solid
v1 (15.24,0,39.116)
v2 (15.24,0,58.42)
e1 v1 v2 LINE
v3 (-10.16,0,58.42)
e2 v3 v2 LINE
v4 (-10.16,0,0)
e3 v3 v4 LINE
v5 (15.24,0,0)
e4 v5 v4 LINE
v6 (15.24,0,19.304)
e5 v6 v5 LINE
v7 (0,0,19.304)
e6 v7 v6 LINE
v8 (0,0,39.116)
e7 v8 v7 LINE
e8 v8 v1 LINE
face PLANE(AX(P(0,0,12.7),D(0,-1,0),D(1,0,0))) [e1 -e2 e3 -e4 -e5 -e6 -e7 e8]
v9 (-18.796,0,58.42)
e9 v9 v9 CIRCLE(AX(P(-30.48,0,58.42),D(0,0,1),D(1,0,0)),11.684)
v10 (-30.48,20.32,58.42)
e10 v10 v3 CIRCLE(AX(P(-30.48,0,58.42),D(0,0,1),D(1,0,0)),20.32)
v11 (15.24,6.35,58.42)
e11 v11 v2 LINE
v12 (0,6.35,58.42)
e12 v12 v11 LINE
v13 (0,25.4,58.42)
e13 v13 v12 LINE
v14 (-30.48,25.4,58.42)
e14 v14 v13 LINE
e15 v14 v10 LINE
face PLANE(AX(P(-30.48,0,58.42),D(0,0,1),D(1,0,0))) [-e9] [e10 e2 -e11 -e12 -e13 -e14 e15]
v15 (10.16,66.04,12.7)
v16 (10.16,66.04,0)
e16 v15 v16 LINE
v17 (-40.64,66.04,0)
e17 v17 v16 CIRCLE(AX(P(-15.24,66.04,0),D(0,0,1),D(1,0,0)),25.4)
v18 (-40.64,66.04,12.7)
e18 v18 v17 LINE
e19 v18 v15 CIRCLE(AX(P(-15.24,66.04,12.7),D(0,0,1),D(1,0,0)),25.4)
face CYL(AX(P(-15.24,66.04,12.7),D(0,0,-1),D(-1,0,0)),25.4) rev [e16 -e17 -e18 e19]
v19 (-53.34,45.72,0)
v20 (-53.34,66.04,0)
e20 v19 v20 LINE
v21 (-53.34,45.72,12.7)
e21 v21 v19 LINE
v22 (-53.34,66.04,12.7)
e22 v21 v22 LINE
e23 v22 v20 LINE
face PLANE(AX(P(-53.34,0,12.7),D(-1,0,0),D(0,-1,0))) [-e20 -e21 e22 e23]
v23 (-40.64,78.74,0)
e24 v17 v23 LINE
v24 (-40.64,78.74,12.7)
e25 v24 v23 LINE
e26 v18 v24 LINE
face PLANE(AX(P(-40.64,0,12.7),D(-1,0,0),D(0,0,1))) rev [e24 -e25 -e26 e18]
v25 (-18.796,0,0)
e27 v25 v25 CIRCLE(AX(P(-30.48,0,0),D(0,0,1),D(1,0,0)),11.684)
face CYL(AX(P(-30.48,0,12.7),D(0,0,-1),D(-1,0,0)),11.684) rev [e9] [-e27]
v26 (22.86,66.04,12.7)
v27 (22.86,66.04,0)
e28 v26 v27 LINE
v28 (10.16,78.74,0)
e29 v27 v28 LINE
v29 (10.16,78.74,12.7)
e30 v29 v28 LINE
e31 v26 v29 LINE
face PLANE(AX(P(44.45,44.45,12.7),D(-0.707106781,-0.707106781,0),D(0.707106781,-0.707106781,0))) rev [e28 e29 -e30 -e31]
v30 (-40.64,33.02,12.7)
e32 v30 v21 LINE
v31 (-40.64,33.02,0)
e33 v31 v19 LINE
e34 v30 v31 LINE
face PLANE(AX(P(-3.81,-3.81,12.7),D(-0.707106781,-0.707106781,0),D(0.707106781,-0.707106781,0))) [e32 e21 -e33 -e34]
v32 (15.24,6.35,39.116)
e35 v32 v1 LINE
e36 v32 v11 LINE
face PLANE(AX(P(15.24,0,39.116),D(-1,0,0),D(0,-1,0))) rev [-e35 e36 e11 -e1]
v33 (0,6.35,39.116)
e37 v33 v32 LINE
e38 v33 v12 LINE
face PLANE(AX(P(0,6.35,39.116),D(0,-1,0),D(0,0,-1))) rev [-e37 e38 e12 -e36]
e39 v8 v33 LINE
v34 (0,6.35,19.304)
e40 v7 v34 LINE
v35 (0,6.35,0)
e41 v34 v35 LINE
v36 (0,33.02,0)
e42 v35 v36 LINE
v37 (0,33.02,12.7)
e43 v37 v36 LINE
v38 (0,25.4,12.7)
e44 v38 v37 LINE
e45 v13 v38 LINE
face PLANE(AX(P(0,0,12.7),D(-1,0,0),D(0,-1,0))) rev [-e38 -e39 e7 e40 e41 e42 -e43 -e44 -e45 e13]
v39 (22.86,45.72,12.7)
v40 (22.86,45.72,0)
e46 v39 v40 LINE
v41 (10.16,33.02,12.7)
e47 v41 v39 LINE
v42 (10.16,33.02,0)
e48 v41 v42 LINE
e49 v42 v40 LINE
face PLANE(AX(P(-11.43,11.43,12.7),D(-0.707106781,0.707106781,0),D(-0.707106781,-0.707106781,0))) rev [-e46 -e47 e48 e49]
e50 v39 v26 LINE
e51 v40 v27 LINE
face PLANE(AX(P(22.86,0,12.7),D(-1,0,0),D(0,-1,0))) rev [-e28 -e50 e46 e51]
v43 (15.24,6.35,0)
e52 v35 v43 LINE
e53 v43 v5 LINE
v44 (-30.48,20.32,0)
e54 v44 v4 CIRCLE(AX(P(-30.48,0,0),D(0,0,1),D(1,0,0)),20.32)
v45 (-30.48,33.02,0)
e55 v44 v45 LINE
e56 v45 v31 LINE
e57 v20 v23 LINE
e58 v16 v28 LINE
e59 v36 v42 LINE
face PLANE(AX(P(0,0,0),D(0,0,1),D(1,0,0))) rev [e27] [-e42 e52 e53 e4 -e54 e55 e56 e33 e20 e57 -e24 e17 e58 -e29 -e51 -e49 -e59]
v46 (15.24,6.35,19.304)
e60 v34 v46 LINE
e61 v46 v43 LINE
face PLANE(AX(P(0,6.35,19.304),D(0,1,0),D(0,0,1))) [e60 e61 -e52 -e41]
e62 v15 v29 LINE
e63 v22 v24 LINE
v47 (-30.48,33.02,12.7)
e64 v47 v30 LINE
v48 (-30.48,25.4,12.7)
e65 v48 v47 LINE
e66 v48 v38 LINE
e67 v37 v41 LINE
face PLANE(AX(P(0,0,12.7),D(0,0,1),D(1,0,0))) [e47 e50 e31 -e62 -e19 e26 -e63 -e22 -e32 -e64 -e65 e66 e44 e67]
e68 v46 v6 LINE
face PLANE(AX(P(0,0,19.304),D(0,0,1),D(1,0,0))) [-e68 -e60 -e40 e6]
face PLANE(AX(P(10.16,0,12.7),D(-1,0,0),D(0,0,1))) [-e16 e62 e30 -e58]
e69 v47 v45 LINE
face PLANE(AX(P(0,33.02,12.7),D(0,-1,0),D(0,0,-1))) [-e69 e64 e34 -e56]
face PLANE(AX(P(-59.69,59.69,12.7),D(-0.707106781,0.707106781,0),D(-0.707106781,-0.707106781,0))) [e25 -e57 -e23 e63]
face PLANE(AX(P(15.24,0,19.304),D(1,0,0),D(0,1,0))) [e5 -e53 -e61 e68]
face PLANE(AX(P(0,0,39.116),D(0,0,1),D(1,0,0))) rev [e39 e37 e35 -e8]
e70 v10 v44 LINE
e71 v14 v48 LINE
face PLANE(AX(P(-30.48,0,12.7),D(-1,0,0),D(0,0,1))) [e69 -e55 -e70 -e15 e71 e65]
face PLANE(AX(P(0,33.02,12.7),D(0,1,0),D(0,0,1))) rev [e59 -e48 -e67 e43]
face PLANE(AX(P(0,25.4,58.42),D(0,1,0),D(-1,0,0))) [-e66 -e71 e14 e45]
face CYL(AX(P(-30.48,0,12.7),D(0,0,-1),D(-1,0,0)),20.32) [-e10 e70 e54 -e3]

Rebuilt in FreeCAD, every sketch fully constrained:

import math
import FreeCAD as App
import Part
import Sketcher
Q = App.Units.Quantity

doc = App.newDocument("Part")
params = doc.addObject("Spreadsheet::Sheet", "Params")
for row, (alias, value) in enumerate([
    ("sketch1_radius", "1 in"),
    ("sketch1_radius2", "0.8 in"),
    ("sketch1_diameter", "0.92 in"),
    ("sketch1_height", "1.3 in"),
    ("sketch1_height2", "0.8 in"),
    ("pad1_length", "0.5 in"),
    ("sketch2_radius", "0.8 in"),
    ("sketch2_diameter", "0.92 in"),
    ("sketch2_height", "1 in"),
    ("sketch2_width", "0.4 in"),
    ("pad2_length", "1.8 in"),
    ("sketch3_width", "0.6 in"),
    ("sketch3_height", "0.25 in"),
    ("pad3_length", "0.76 in"),
    ("sketch4_width", "0.6 in"),
    ("sketch4_height", "0.25 in"),
    ("pad4_length", "0.76 in"),
], start=1):
    params.set(f"A{row}", alias)
    params.set(f"B{row}", "=" + value)
    params.setAlias(f"B{row}", alias)

body = doc.addObject("PartDesign::Body", "Body")

sketch1 = body.newObject("Sketcher::SketchObject", "Sketch")
sketch1.AttachmentSupport = (doc.getObject("XY_Plane"), [""])
sketch1.MapMode = "FlatFace"
sketch1.addGeometry(Part.LineSegment(App.Vector(-10.16, 0, 0), App.Vector(0, 0, 0)), False)
sketch1.addGeometry(Part.LineSegment(App.Vector(0, 0, 0), App.Vector(0, 33.02, 0)), False)
sketch1.addGeometry(Part.LineSegment(App.Vector(0, 33.02, 0), App.Vector(10.16, 33.02, 0)), False)
sketch1.addGeometry(Part.LineSegment(App.Vector(10.16, 33.02, 0), App.Vector(22.86, 45.72, 0)), False)
sketch1.addGeometry(Part.LineSegment(App.Vector(22.86, 45.72, 0), App.Vector(22.86, 66.04, 0)), False)
sketch1.addGeometry(Part.LineSegment(App.Vector(22.86, 66.04, 0), App.Vector(10.16, 78.74, 0)), False)
sketch1.addGeometry(Part.LineSegment(App.Vector(10.16, 78.74, 0), App.Vector(10.16, 66.04, 0)), False)
sketch1.addGeometry(Part.ArcOfCircle(Part.Circle(App.Vector(-15.24, 66.04, 0), App.Vector(0, 0, 1), 25.4), math.radians(180), math.radians(360)), False)
sketch1.addGeometry(Part.LineSegment(App.Vector(-40.64, 66.04, 0), App.Vector(-40.64, 78.74, 0)), False)
sketch1.addGeometry(Part.LineSegment(App.Vector(-40.64, 78.74, 0), App.Vector(-53.34, 66.04, 0)), False)
sketch1.addGeometry(Part.LineSegment(App.Vector(-53.34, 66.04, 0), App.Vector(-53.34, 45.72, 0)), False)
sketch1.addGeometry(Part.LineSegment(App.Vector(-53.34, 45.72, 0), App.Vector(-40.64, 33.02, 0)), False)
sketch1.addGeometry(Part.LineSegment(App.Vector(-40.64, 33.02, 0), App.Vector(-30.48, 33.02, 0)), False)
sketch1.addGeometry(Part.LineSegment(App.Vector(-30.48, 33.02, 0), App.Vector(-30.48, 20.32, 0)), False)
sketch1.addGeometry(Part.ArcOfCircle(Part.Circle(App.Vector(-30.48, 0, 0), App.Vector(0, 0, 1), 20.32), math.radians(90), math.radians(360)), False)
sketch1.addGeometry(Part.Circle(App.Vector(-30.48, 0, 0), App.Vector(0, 0, 1), 11.684), False)
sketch1.addConstraint(Sketcher.Constraint("Coincident", 0, 2, 1, 1))
sketch1.addConstraint(Sketcher.Constraint("Coincident", 1, 2, 2, 1))
sketch1.addConstraint(Sketcher.Constraint("Coincident", 2, 2, 3, 1))
sketch1.addConstraint(Sketcher.Constraint("Coincident", 3, 2, 4, 1))
sketch1.addConstraint(Sketcher.Constraint("Coincident", 4, 2, 5, 1))
sketch1.addConstraint(Sketcher.Constraint("Coincident", 5, 2, 6, 1))
sketch1.addConstraint(Sketcher.Constraint("Tangent", 6, 2, 7, 2))
sketch1.addConstraint(Sketcher.Constraint("Tangent", 7, 1, 8, 1))
sketch1.addConstraint(Sketcher.Constraint("Coincident", 8, 2, 9, 1))
sketch1.addConstraint(Sketcher.Constraint("Coincident", 9, 2, 10, 1))
sketch1.addConstraint(Sketcher.Constraint("Coincident", 10, 2, 11, 1))
sketch1.addConstraint(Sketcher.Constraint("Coincident", 11, 2, 12, 1))
sketch1.addConstraint(Sketcher.Constraint("Coincident", 12, 2, 13, 1))
sketch1.addConstraint(Sketcher.Constraint("Coincident", 13, 2, 14, 1))
sketch1.addConstraint(Sketcher.Constraint("Coincident", 14, 2, 0, 1))
sketch1.addConstraint(Sketcher.Constraint("Horizontal", 0))
sketch1.addConstraint(Sketcher.Constraint("Vertical", 1))
sketch1.addConstraint(Sketcher.Constraint("Horizontal", 2))
sketch1.addConstraint(Sketcher.Constraint("Vertical", 4))
sketch1.addConstraint(Sketcher.Constraint("Vertical", 6))
sketch1.addConstraint(Sketcher.Constraint("Vertical", 8))
sketch1.addConstraint(Sketcher.Constraint("Vertical", 10))
sketch1.addConstraint(Sketcher.Constraint("Horizontal", 12))
sketch1.addConstraint(Sketcher.Constraint("Vertical", 13))
sketch1.addConstraint(Sketcher.Constraint("Coincident", 0, 2, -1, 1))
sketch1.addConstraint(Sketcher.Constraint("Coincident", 15, 3, 14, 3))
sketch1.addConstraint(Sketcher.Constraint("PointOnObject", 14, 3, -1))
sketch1.addConstraint(Sketcher.Constraint("Perpendicular", 3, 5))
sketch1.addConstraint(Sketcher.Constraint("Perpendicular", 5, 9))
sketch1.addConstraint(Sketcher.Constraint("Perpendicular", 9, 11))
sketch1.addConstraint(Sketcher.Constraint("Horizontal", 7, 3, 4, 2))
sketch1.addConstraint(Sketcher.Constraint("Horizontal", 5, 2, 8, 2))
sketch1.addConstraint(Sketcher.Constraint("Horizontal", 7, 1, 9, 2))
sketch1.addConstraint(Sketcher.Constraint("Horizontal", 3, 2, 10, 2))
sketch1.addConstraint(Sketcher.Constraint("Horizontal", 2, 2, 11, 2))
sketch1.addConstraint(Sketcher.Constraint("Vertical", 2, 2, 5, 2))
sketch1.addConstraint(Sketcher.Constraint("Vertical", 8, 2, 11, 2))
sketch1.addConstraint(Sketcher.Constraint("Vertical", 15, 3, 12, 2))
sketch1.addConstraint(Sketcher.Constraint("Equal", 0, 2))
sketch1.addConstraint(Sketcher.Constraint("Equal", 2, 12))
sketch1.addConstraint(Sketcher.Constraint("Equal", 8, 13))
sketch1.addConstraint(Sketcher.Constraint("Radius", 7, Q("1 in")))
sketch1.addConstraint(Sketcher.Constraint("Radius", 14, Q("0.8 in")))
sketch1.addConstraint(Sketcher.Constraint("Diameter", 15, Q("0.92 in")))
sketch1.addConstraint(Sketcher.Constraint("DistanceY", 1, 1, 1, 2, Q("1.3 in")))
sketch1.addConstraint(Sketcher.Constraint("DistanceY", 4, 1, 4, 2, Q("0.8 in")))
sketch1.setExpression("Constraints[41]", "Params.sketch1_radius")
sketch1.setExpression("Constraints[42]", "Params.sketch1_radius2")
sketch1.setExpression("Constraints[43]", "Params.sketch1_diameter")
sketch1.setExpression("Constraints[44]", "Params.sketch1_height")
sketch1.setExpression("Constraints[45]", "Params.sketch1_height2")
pad1 = body.newObject("PartDesign::Pad", "Pad")
pad1.Profile = sketch1
pad1.setExpression("Length", "Params.pad1_length")

sketch2 = body.newObject("Sketcher::SketchObject", "Sketch001")
sketch2.AttachmentSupport = (doc.getObject("XY_Plane"), [""])
sketch2.MapMode = "FlatFace"
sketch2.AttachmentOffset = App.Placement(App.Vector(0, 0, 0.5 * 25.4), App.Rotation())
sketch2.addGeometry(Part.LineSegment(App.Vector(-30.48, 25.4, 0), App.Vector(-30.48, 20.32, 0)), False)
sketch2.addGeometry(Part.ArcOfCircle(Part.Circle(App.Vector(-30.48, 0, 0), App.Vector(0, 0, 1), 20.32), math.radians(90), math.radians(360)), False)
sketch2.addGeometry(Part.LineSegment(App.Vector(-10.16, 0, 0), App.Vector(0, 0, 0)), False)
sketch2.addGeometry(Part.LineSegment(App.Vector(0, 0, 0), App.Vector(0, 25.4, 0)), False)
sketch2.addGeometry(Part.LineSegment(App.Vector(0, 25.4, 0), App.Vector(-30.48, 25.4, 0)), False)
sketch2.addGeometry(Part.Circle(App.Vector(-30.48, 0, 0), App.Vector(0, 0, 1), 11.684), False)
sketch2.addConstraint(Sketcher.Constraint("Coincident", 0, 2, 1, 1))
sketch2.addConstraint(Sketcher.Constraint("Coincident", 1, 2, 2, 1))
sketch2.addConstraint(Sketcher.Constraint("Coincident", 2, 2, 3, 1))
sketch2.addConstraint(Sketcher.Constraint("Coincident", 3, 2, 4, 1))
sketch2.addConstraint(Sketcher.Constraint("Coincident", 4, 2, 0, 1))
sketch2.addConstraint(Sketcher.Constraint("Vertical", 0))
sketch2.addConstraint(Sketcher.Constraint("Horizontal", 2))
sketch2.addConstraint(Sketcher.Constraint("Vertical", 3))
sketch2.addConstraint(Sketcher.Constraint("Horizontal", 4))
sketch2.addConstraint(Sketcher.Constraint("Coincident", 2, 2, -1, 1))
sketch2.addConstraint(Sketcher.Constraint("Coincident", 5, 3, 1, 3))
sketch2.addConstraint(Sketcher.Constraint("PointOnObject", 1, 3, -1))
sketch2.addConstraint(Sketcher.Constraint("Vertical", 5, 3, 0, 2))
sketch2.addConstraint(Sketcher.Constraint("Radius", 1, Q("0.8 in")))
sketch2.addConstraint(Sketcher.Constraint("Diameter", 5, Q("0.92 in")))
sketch2.addConstraint(Sketcher.Constraint("DistanceY", 3, 1, 3, 2, Q("1 in")))
sketch2.addConstraint(Sketcher.Constraint("DistanceX", 2, 1, 2, 2, Q("0.4 in")))
sketch2.setExpression("Constraints[13]", "Params.sketch2_radius")
sketch2.setExpression("Constraints[14]", "Params.sketch2_diameter")
sketch2.setExpression("Constraints[15]", "Params.sketch2_height")
sketch2.setExpression("Constraints[16]", "Params.sketch2_width")
pad2 = body.newObject("PartDesign::Pad", "Pad001")
pad2.Profile = sketch2
pad2.setExpression("Length", "Params.pad2_length")

sketch3 = body.newObject("Sketcher::SketchObject", "Sketch002")
sketch3.AttachmentSupport = (doc.getObject("XY_Plane"), [""])
sketch3.MapMode = "FlatFace"
sketch3.addGeometry(Part.LineSegment(App.Vector(0, 6.35, 0), App.Vector(0, 0, 0)), False)
sketch3.addGeometry(Part.LineSegment(App.Vector(0, 0, 0), App.Vector(15.24, 0, 0)), False)
sketch3.addGeometry(Part.LineSegment(App.Vector(15.24, 0, 0), App.Vector(15.24, 6.35, 0)), False)
sketch3.addGeometry(Part.LineSegment(App.Vector(15.24, 6.35, 0), App.Vector(0, 6.35, 0)), False)
sketch3.addConstraint(Sketcher.Constraint("Coincident", 0, 2, 1, 1))
sketch3.addConstraint(Sketcher.Constraint("Coincident", 1, 2, 2, 1))
sketch3.addConstraint(Sketcher.Constraint("Coincident", 2, 2, 3, 1))
sketch3.addConstraint(Sketcher.Constraint("Coincident", 3, 2, 0, 1))
sketch3.addConstraint(Sketcher.Constraint("Vertical", 0))
sketch3.addConstraint(Sketcher.Constraint("Horizontal", 1))
sketch3.addConstraint(Sketcher.Constraint("Vertical", 2))
sketch3.addConstraint(Sketcher.Constraint("Horizontal", 3))
sketch3.addConstraint(Sketcher.Constraint("Coincident", 0, 2, -1, 1))
sketch3.addConstraint(Sketcher.Constraint("DistanceX", 1, 1, 1, 2, Q("0.6 in")))
sketch3.addConstraint(Sketcher.Constraint("DistanceY", 0, 2, 0, 1, Q("0.25 in")))
sketch3.setExpression("Constraints[9]", "Params.sketch3_width")
sketch3.setExpression("Constraints[10]", "Params.sketch3_height")
pad3 = body.newObject("PartDesign::Pad", "Pad002")
pad3.Profile = sketch3
pad3.setExpression("Length", "Params.pad3_length")

sketch4 = body.newObject("Sketcher::SketchObject", "Sketch003")
sketch4.AttachmentSupport = (doc.getObject("XY_Plane"), [""])
sketch4.MapMode = "FlatFace"
sketch4.AttachmentOffset = App.Placement(App.Vector(0, 0, 1.54 * 25.4), App.Rotation())
sketch4.addGeometry(Part.LineSegment(App.Vector(0, 6.35, 0), App.Vector(0, 0, 0)), False)
sketch4.addGeometry(Part.LineSegment(App.Vector(0, 0, 0), App.Vector(15.24, 0, 0)), False)
sketch4.addGeometry(Part.LineSegment(App.Vector(15.24, 0, 0), App.Vector(15.24, 6.35, 0)), False)
sketch4.addGeometry(Part.LineSegment(App.Vector(15.24, 6.35, 0), App.Vector(0, 6.35, 0)), False)
sketch4.addConstraint(Sketcher.Constraint("Coincident", 0, 2, 1, 1))
sketch4.addConstraint(Sketcher.Constraint("Coincident", 1, 2, 2, 1))
sketch4.addConstraint(Sketcher.Constraint("Coincident", 2, 2, 3, 1))
sketch4.addConstraint(Sketcher.Constraint("Coincident", 3, 2, 0, 1))
sketch4.addConstraint(Sketcher.Constraint("Vertical", 0))
sketch4.addConstraint(Sketcher.Constraint("Horizontal", 1))
sketch4.addConstraint(Sketcher.Constraint("Vertical", 2))
sketch4.addConstraint(Sketcher.Constraint("Horizontal", 3))
sketch4.addConstraint(Sketcher.Constraint("Coincident", 0, 2, -1, 1))
sketch4.addConstraint(Sketcher.Constraint("DistanceX", 1, 1, 1, 2, Q("0.6 in")))
sketch4.addConstraint(Sketcher.Constraint("DistanceY", 0, 2, 0, 1, Q("0.25 in")))
sketch4.setExpression("Constraints[9]", "Params.sketch4_width")
sketch4.setExpression("Constraints[10]", "Params.sketch4_height")
pad4 = body.newObject("PartDesign::Pad", "Pad003")
pad4.Profile = sketch4
pad4.setExpression("Length", "Params.pad4_length")

doc.recompute()
